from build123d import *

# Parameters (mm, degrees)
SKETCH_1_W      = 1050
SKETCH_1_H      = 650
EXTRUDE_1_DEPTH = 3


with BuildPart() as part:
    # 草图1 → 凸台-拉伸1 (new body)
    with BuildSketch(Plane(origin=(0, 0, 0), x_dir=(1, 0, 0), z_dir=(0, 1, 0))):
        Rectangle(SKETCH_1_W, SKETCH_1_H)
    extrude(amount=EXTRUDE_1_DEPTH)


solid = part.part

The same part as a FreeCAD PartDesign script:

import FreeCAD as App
import Part
import Sketcher
from FreeCAD import Vector

doc = App.newDocument("Part")
body = doc.addObject("PartDesign::Body", "Body")

# Sketch on XZ plane
sketch1 = body.newObject("Sketcher::SketchObject", "Sketch")
sketch1.AttachmentSupport = (doc.getObject("XZ_Plane"), [""])
sketch1.MapMode = "FlatFace"
sketch1.addGeometry([
    Part.LineSegment(Vector(-525, -325, 0), Vector(-525, 325, 0)),
    Part.LineSegment(Vector(-525, 325, 0), Vector(525, 325, 0)),
    Part.LineSegment(Vector(525, 325, 0), Vector(525, -325, 0)),
    Part.LineSegment(Vector(525, -325, 0), Vector(-525, -325, 0)),
], False)
sketch1.addConstraint([
    Sketcher.Constraint("Coincident", 0, 2, 1, 1),
    Sketcher.Constraint("Coincident", 1, 2, 2, 1),
    Sketcher.Constraint("Coincident", 2, 2, 3, 1),
    Sketcher.Constraint("Coincident", 3, 2, 0, 1),
    Sketcher.Constraint("Vertical", 0),
    Sketcher.Constraint("Horizontal", 1),
    Sketcher.Constraint("Vertical", 2),
    Sketcher.Constraint("Horizontal", 3),
    Sketcher.Constraint("Symmetric", 0, 2, 2, 2, -1, 1),
    Sketcher.Constraint("DistanceX", 1, 1, 1, 2, 1050.0),
    Sketcher.Constraint("DistanceY", 0, 1, 0, 2, 650.0),
])
pad1 = body.newObject("PartDesign::Pad", "Pad")
pad1.Profile = sketch1
pad1.Length = 3
pad1.Reversed = True

doc.recompute()
